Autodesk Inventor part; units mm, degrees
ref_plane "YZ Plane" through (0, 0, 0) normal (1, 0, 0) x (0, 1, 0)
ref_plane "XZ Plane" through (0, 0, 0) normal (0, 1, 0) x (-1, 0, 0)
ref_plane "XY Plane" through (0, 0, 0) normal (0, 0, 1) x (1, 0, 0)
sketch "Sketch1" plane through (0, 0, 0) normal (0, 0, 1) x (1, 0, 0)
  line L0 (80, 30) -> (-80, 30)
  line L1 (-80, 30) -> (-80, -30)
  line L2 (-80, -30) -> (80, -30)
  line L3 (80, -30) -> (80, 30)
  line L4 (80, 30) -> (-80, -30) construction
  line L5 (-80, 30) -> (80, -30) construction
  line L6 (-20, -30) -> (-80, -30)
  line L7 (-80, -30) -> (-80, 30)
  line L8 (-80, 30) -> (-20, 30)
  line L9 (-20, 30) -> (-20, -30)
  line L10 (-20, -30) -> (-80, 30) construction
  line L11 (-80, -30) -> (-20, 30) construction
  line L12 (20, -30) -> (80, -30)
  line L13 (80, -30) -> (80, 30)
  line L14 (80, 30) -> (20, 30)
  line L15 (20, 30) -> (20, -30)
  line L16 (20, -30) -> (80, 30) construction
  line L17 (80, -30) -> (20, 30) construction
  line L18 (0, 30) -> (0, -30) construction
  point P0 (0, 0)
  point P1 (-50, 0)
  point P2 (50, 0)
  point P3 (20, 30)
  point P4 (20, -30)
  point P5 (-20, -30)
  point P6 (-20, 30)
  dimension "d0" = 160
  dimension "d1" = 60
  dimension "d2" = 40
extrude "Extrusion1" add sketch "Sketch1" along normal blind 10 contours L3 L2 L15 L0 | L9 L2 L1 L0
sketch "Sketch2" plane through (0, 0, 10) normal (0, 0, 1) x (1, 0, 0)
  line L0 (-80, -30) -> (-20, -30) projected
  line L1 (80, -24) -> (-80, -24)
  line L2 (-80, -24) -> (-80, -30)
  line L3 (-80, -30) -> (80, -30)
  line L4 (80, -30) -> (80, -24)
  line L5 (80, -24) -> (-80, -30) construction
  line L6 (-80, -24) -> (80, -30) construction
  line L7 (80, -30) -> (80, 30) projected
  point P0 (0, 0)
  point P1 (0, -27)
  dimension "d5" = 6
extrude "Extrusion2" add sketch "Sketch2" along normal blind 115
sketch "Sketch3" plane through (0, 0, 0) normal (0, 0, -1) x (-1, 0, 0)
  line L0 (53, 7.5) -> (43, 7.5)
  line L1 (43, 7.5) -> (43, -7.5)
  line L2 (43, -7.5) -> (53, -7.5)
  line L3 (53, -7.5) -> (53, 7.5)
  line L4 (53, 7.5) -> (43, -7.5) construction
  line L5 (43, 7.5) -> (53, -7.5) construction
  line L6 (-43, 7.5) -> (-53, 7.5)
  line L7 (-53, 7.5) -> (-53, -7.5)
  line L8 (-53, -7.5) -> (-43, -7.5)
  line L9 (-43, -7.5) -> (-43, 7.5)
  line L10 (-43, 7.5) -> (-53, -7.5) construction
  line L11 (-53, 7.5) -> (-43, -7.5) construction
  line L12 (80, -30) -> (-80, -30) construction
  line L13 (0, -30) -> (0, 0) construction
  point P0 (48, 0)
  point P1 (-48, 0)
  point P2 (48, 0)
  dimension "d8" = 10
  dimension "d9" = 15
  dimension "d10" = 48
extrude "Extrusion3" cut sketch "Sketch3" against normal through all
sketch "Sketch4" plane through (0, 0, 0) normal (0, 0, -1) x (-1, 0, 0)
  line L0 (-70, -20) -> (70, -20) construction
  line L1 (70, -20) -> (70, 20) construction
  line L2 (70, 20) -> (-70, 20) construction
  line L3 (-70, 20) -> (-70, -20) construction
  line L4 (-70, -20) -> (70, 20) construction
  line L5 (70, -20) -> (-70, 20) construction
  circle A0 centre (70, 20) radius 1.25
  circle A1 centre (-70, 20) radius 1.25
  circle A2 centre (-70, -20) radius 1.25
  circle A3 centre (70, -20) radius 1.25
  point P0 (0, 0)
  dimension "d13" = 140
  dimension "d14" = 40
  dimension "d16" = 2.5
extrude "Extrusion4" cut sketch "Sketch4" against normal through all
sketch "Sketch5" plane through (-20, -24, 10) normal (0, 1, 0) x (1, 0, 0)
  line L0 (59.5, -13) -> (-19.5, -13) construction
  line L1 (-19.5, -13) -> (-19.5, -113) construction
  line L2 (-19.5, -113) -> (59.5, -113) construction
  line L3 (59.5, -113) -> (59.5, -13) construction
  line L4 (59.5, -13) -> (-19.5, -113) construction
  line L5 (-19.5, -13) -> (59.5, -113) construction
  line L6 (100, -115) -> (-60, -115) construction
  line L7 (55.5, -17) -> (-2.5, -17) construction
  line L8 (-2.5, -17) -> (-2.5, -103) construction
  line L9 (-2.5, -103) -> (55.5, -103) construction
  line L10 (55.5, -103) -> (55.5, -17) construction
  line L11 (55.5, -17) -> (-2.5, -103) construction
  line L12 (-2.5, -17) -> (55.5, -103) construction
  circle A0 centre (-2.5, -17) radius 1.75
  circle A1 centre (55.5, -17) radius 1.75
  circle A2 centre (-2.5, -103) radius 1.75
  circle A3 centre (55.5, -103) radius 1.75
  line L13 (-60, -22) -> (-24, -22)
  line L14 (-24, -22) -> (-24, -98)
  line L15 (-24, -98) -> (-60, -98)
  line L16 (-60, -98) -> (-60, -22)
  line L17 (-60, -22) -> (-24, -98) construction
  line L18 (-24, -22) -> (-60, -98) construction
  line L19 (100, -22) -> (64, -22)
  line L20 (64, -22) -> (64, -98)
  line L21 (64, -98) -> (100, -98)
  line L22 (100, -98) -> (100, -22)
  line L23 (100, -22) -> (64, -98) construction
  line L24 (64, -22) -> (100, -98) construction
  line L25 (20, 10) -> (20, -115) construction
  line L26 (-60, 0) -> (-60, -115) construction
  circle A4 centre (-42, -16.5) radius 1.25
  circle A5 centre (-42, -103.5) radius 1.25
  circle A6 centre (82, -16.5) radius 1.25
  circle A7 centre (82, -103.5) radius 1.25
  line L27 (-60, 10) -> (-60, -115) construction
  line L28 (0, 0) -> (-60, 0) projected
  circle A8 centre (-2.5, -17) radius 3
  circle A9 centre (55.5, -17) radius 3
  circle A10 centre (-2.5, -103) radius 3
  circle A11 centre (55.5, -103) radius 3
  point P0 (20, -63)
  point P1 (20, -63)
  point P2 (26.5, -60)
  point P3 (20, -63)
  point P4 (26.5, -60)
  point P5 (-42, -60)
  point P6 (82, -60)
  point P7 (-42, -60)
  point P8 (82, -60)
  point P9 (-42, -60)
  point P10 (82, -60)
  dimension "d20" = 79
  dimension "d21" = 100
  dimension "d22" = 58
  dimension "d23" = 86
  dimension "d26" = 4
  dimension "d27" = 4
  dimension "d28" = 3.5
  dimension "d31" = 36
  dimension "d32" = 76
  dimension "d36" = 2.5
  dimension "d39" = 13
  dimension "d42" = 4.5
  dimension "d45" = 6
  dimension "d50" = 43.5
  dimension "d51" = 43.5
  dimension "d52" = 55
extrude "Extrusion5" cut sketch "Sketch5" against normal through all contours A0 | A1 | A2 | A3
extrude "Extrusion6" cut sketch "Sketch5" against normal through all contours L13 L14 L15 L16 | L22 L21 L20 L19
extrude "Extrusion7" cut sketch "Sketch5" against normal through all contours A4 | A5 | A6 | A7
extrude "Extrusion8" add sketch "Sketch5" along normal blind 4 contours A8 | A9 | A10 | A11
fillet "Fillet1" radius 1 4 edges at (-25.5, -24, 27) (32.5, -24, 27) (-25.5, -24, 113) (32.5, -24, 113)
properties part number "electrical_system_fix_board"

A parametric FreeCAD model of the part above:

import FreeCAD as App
import Part
import Sketcher

V = App.Vector


def edges_at(feature, points):
    """Names of the edges that pass closest to the given points."""
    edges = feature.Shape.Edges
    near = lambda p: min(range(len(edges)), key=lambda i: edges[i].distToShape(Part.Vertex(*p))[0])
    return sorted({f"Edge{near(p) + 1}" for p in points})


def add_polygon(sketch, points):
    """Adds a closed chain of lines whose ends are joined by coincident constraints."""
    first, n = sketch.GeometryCount, len(points)
    for a, b in zip(points, points[1:] + points[:1]):
        sketch.addGeometry(Part.LineSegment(App.Vector(*a, 0), App.Vector(*b, 0)), False)
    for i in range(n):
        sketch.addConstraint(Sketcher.Constraint("Coincident", first + i, 2, first + (i + 1) % n, 1))

doc = App.newDocument("Part")
body = doc.addObject("PartDesign::Body", "Body")
body.AllowCompound = True

# Sketch on XY plane
sketch1 = body.newObject("Sketcher::SketchObject", "Sketch")
sketch1.AttachmentSupport = (doc.getObject("XY_Plane"), [""])
sketch1.MapMode = "FlatFace"
add_polygon(sketch1, [(80, -30), (80, 30), (20, 30), (20, -30)])  # lines 0-3
add_polygon(sketch1, [(-20, -30), (-20, 30), (-80, 30), (-80, -30)])  # lines 4-7
sketch1.addConstraint(Sketcher.Constraint("Vertical", 0))
sketch1.addConstraint(Sketcher.Constraint("Horizontal", 1))
sketch1.addConstraint(Sketcher.Constraint("Vertical", 2))
sketch1.addConstraint(Sketcher.Constraint("Horizontal", 3))
sketch1.addConstraint(Sketcher.Constraint("Vertical", 4))
sketch1.addConstraint(Sketcher.Constraint("Horizontal", 5))
sketch1.addConstraint(Sketcher.Constraint("Vertical", 6))
sketch1.addConstraint(Sketcher.Constraint("Horizontal", 7))
sketch1.addConstraint(Sketcher.Constraint("Symmetric", 2, 2, 4, 2, -1, 1))
sketch1.addConstraint(Sketcher.Constraint("Symmetric", 0, 2, 6, 2, -1, 1))
sketch1.addConstraint(Sketcher.Constraint("Horizontal", 1, 2, 4, 2))
sketch1.addConstraint(Sketcher.Constraint("Equal", 7, 0))
sketch1.addConstraint(Sketcher.Constraint("DistanceX", 1, 2, 1, 1, 60.0))
sketch1.addConstraint(Sketcher.Constraint("DistanceX", 4, 2, 1, 2, 40.0))
pad1 = body.newObject("PartDesign::Pad", "Pad")
pad1.Profile = sketch1
pad1.Length = 10

# Sketch on XY plane
sketch2 = body.newObject("Sketcher::SketchObject", "Sketch001")
sketch2.AttachmentSupport = (doc.getObject("XY_Plane"), [""])
sketch2.MapMode = "FlatFace"
sketch2.AttachmentOffset = App.Placement(V(0, 0, 10), App.Rotation())
add_polygon(sketch2, [(-80, -24), (-80, -30), (80, -30), (80, -24)])  # lines 0-3
sketch2.addConstraint(Sketcher.Constraint("Vertical", 0))
sketch2.addConstraint(Sketcher.Constraint("Horizontal", 1))
sketch2.addConstraint(Sketcher.Constraint("Vertical", 2))
sketch2.addConstraint(Sketcher.Constraint("Horizontal", 3))
sketch2.addConstraint(Sketcher.Constraint("DistanceY", 0, 2, 0, 1, 6.0))
sketch2.addConstraint(Sketcher.Constraint("DistanceX", 1, 1, 1, 2, 160.0))
sketch2.addConstraint(Sketcher.Constraint("DistanceX", 0, 2, -1, 1, 80.0))
sketch2.addConstraint(Sketcher.Constraint("DistanceY", 0, 2, -1, 1, 30.0))
pad2 = body.newObject("PartDesign::Pad", "Pad001")
pad2.Profile = sketch2
pad2.Length = 115

# Sketch on XY plane
sketch3 = body.newObject("Sketcher::SketchObject", "Sketch002")
sketch3.AttachmentSupport = (doc.getObject("XY_Plane"), [""])
sketch3.MapMode = "FlatFace"
add_polygon(sketch3, [(-53, -8), (-53, 8), (-43, 8), (-43, -8)])  # lines 0-3
add_polygon(sketch3, [(43, -8), (43, 8), (53, 8), (53, -8)])  # lines 4-7
sketch3.addConstraint(Sketcher.Constraint("Vertical", 0))
sketch3.addConstraint(Sketcher.Constraint("Horizontal", 1))
sketch3.addConstraint(Sketcher.Constraint("Vertical", 2))
sketch3.addConstraint(Sketcher.Constraint("Horizontal", 3))
sketch3.addConstraint(Sketcher.Constraint("Vertical", 4))
sketch3.addConstraint(Sketcher.Constraint("Horizontal", 5))
sketch3.addConstraint(Sketcher.Constraint("Vertical", 6))
sketch3.addConstraint(Sketcher.Constraint("Horizontal", 7))
sketch3.addConstraint(Sketcher.Constraint("Symmetric", 2, 2, 4, 2, -1, 1))
sketch3.addConstraint(Sketcher.Constraint("Symmetric", 0, 2, 6, 2, -1, 1))
sketch3.addConstraint(Sketcher.Constraint("Horizontal", 1, 2, 4, 2))
sketch3.addConstraint(Sketcher.Constraint("DistanceX", 1, 1, 1, 2, 10.0))
sketch3.addConstraint(Sketcher.Constraint("DistanceY", 0, 1, 0, 2, 15.0))
sketch3.addConstraint(Sketcher.Constraint("DistanceX", 0, 2, -1, 1, 53.0))
pocket1 = body.newObject("PartDesign::Pocket", "Pocket")
pocket1.Profile = sketch3
pocket1.Type = "ThroughAll"
pocket1.Reversed = True

# Sketch on XY plane
sketch4 = body.newObject("Sketcher::SketchObject", "Sketch003")
sketch4.AttachmentSupport = (doc.getObject("XY_Plane"), [""])
sketch4.MapMode = "FlatFace"
sketch4.addGeometry(Part.Circle(V(-70, 20, 0), V(0, 0, 1), 1.2), False)
sketch4.addGeometry(Part.Circle(V(70, 20, 0), V(0, 0, 1), 1.2), False)
sketch4.addGeometry(Part.Circle(V(70, -20, 0), V(0, 0, 1), 1.2), False)
sketch4.addGeometry(Part.Circle(V(-70, -20, 0), V(0, 0, 1), 1.2), False)
sketch4.addConstraint(Sketcher.Constraint("Equal", 0, 1))
sketch4.addConstraint(Sketcher.Constraint("Equal", 1, 2))
sketch4.addConstraint(Sketcher.Constraint("Equal", 2, 3))
sketch4.addConstraint(Sketcher.Constraint("Symmetric", 0, 3, 2, 3, -1, 1))
sketch4.addConstraint(Sketcher.Constraint("Symmetric", 1, 3, 3, 3, -1, 1))
sketch4.addConstraint(Sketcher.Constraint("Symmetric", 0, 3, 1, 3, -2))
sketch4.addConstraint(Sketcher.Constraint("Diameter", 0, 2.5))
sketch4.addConstraint(Sketcher.Constraint("DistanceX", 0, 3, 1, 3, 140.0))
sketch4.addConstraint(Sketcher.Constraint("DistanceY", 2, 3, 1, 3, 40.0))
pocket2 = body.newObject("PartDesign::Pocket", "Pocket001")
pocket2.Profile = sketch4
pocket2.Type = "ThroughAll"
pocket2.Reversed = True

# Sketch on XZ plane
sketch5 = body.newObject("Sketcher::SketchObject", "Sketch004")
sketch5.AttachmentSupport = (doc.getObject("XZ_Plane"), [""])
sketch5.MapMode = "FlatFace"
sketch5.AttachmentOffset = App.Placement(V(0, 0, 24), App.Rotation())
sketch5.addGeometry(Part.Circle(V(-22.5, 27, 0), V(0, 0, 1), 1.8), False)
sketch5.addGeometry(Part.Circle(V(35.5, 27, 0), V(0, 0, 1), 1.8), False)
sketch5.addGeometry(Part.Circle(V(-22.5, 113, 0), V(0, 0, 1), 1.8), False)
sketch5.addGeometry(Part.Circle(V(35.5, 113, 0), V(0, 0, 1), 1.8), False)
sketch5.addConstraint(Sketcher.Constraint("Equal", 0, 1))
sketch5.addConstraint(Sketcher.Constraint("Equal", 1, 2))
sketch5.addConstraint(Sketcher.Constraint("Equal", 2, 3))
sketch5.addConstraint(Sketcher.Constraint("Horizontal", 0, 3, 1, 3))
sketch5.addConstraint(Sketcher.Constraint("Horizontal", 2, 3, 3, 3))
sketch5.addConstraint(Sketcher.Constraint("Vertical", 0, 3, 2, 3))
sketch5.addConstraint(Sketcher.Constraint("Vertical", 1, 3, 3, 3))
sketch5.addConstraint(Sketcher.Constraint("Diameter", 0, 3.5))
sketch5.addConstraint(Sketcher.Constraint("DistanceX", 0, 3, 1, 3, 58.0))
sketch5.addConstraint(Sketcher.Constraint("DistanceY", 0, 3, 2, 3, 86.0))
sketch5.addConstraint(Sketcher.Constraint("DistanceY", -1, 1, 0, 3, 27.0))
sketch5.addConstraint(Sketcher.Constraint("DistanceX", 0, 3, -1, 1, 22.5))
pocket3 = body.newObject("PartDesign::Pocket", "Pocket002")
pocket3.Profile = sketch5
pocket3.Type = "ThroughAll"
pocket3.Reversed = True

# Sketch on XZ plane
sketch6 = body.newObject("Sketcher::SketchObject", "Sketch005")
sketch6.AttachmentSupport = (doc.getObject("XZ_Plane"), [""])
sketch6.MapMode = "FlatFace"
sketch6.AttachmentOffset = App.Placement(V(0, 0, 24), App.Rotation())
add_polygon(sketch6, [(-44, 32), (-80, 32), (-80, 108), (-44, 108)])  # lines 0-3
add_polygon(sketch6, [(80, 108), (80, 32), (44, 32), (44, 108)])  # lines 4-7
sketch6.addConstraint(Sketcher.Constraint("Horizontal", 0))
sketch6.addConstraint(Sketcher.Constraint("Vertical", 1))
sketch6.addConstraint(Sketcher.Constraint("Horizontal", 2))
sketch6.addConstraint(Sketcher.Constraint("Vertical", 3))
sketch6.addConstraint(Sketcher.Constraint("Vertical", 4))
sketch6.addConstraint(Sketcher.Constraint("Horizontal", 5))
sketch6.addConstraint(Sketcher.Constraint("Vertical", 6))
sketch6.addConstraint(Sketcher.Constraint("Horizontal", 7))
sketch6.addConstraint(Sketcher.Constraint("Symmetric", 0, 2, 4, 2, -2))
sketch6.addConstraint(Sketcher.Constraint("Symmetric", 2, 2, 6, 2, -2))
sketch6.addConstraint(Sketcher.Constraint("DistanceX", 0, 2, 0, 1, 36.0))
sketch6.addConstraint(Sketcher.Constraint("DistanceY", 1, 1, 1, 2, 76.0))
sketch6.addConstraint(Sketcher.Constraint("DistanceX", 0, 2, -1, 1, 80.0))
sketch6.addConstraint(Sketcher.Constraint("DistanceY", -1, 1, 0, 2, 32.0))
pocket4 = body.newObject("PartDesign::Pocket", "Pocket003")
pocket4.Profile = sketch6
pocket4.Type = "ThroughAll"
pocket4.Reversed = True

# Sketch on XZ plane
sketch7 = body.newObject("Sketcher::SketchObject", "Sketch006")
sketch7.AttachmentSupport = (doc.getObject("XZ_Plane"), [""])
sketch7.MapMode = "FlatFace"
sketch7.AttachmentOffset = App.Placement(V(0, 0, 24), App.Rotation())
sketch7.addGeometry(Part.Circle(V(-62, 26.5, 0), V(0, 0, 1), 1.2), False)
sketch7.addGeometry(Part.Circle(V(-62, 113.5, 0), V(0, 0, 1), 1.2), False)
sketch7.addGeometry(Part.Circle(V(62, 26.5, 0), V(0, 0, 1), 1.2), False)
sketch7.addGeometry(Part.Circle(V(62, 113.5, 0), V(0, 0, 1), 1.2), False)
sketch7.addConstraint(Sketcher.Constraint("Equal", 0, 1))
sketch7.addConstraint(Sketcher.Constraint("Equal", 1, 2))
sketch7.addConstraint(Sketcher.Constraint("Equal", 2, 3))
sketch7.addConstraint(Sketcher.Constraint("Symmetric", 0, 3, 2, 3, -2))
sketch7.addConstraint(Sketcher.Constraint("Symmetric", 1, 3, 3, 3, -2))
sketch7.addConstraint(Sketcher.Constraint("Vertical", 0, 3, 1, 3))
sketch7.addConstraint(Sketcher.Constraint("Diameter", 0, 2.5))
sketch7.addConstraint(Sketcher.Constraint("DistanceX", 0, 3, -1, 1, 62.0))
sketch7.addConstraint(Sketcher.Constraint("DistanceY", 0, 3, 1, 3, 87.0))
sketch7.addConstraint(Sketcher.Constraint("DistanceY", -1, 1, 0, 3, 26.5))
pocket5 = body.newObject("PartDesign::Pocket", "Pocket004")
pocket5.Profile = sketch7
pocket5.Type = "ThroughAll"
pocket5.Reversed = True

# Sketch on XZ plane
sketch8 = body.newObject("Sketcher::SketchObject", "Sketch007")
sketch8.AttachmentSupport = (doc.getObject("XZ_Plane"), [""])
sketch8.MapMode = "FlatFace"
sketch8.AttachmentOffset = App.Placement(V(0, 0, 24), App.Rotation())
sketch8.addGeometry(Part.Circle(V(-22.5, 27, 0), V(0, 0, 1), 3), False)
sketch8.addGeometry(Part.Circle(V(-22.5, 27, 0), V(0, 0, 1), 1.8), False)
sketch8.addGeometry(Part.Circle(V(35.5, 27, 0), V(0, 0, 1), 3), False)
sketch8.addGeometry(Part.Circle(V(35.5, 27, 0), V(0, 0, 1), 1.8), False)
sketch8.addGeometry(Part.Circle(V(-22.5, 113, 0), V(0, 0, 1), 3), False)
sketch8.addGeometry(Part.Circle(V(-22.5, 113, 0), V(0, 0, 1), 1.8), False)
sketch8.addGeometry(Part.Circle(V(35.5, 113, 0), V(0, 0, 1), 3), False)
sketch8.addGeometry(Part.Circle(V(35.5, 113, 0), V(0, 0, 1), 1.8), False)
sketch8.addConstraint(Sketcher.Constraint("Coincident", 1, 3, 0, 3))
sketch8.addConstraint(Sketcher.Constraint("Coincident", 3, 3, 2, 3))
sketch8.addConstraint(Sketcher.Constraint("Coincident", 5, 3, 4, 3))
sketch8.addConstraint(Sketcher.Constraint("Coincident", 7, 3, 6, 3))
sketch8.addConstraint(Sketcher.Constraint("Equal", 0, 2))
sketch8.addConstraint(Sketcher.Constraint("Equal", 1, 3))
sketch8.addConstraint(Sketcher.Constraint("Equal", 2, 4))
sketch8.addConstraint(Sketcher.Constraint("Equal", 3, 5))
sketch8.addConstraint(Sketcher.Constraint("Equal", 4, 6))
sketch8.addConstraint(Sketcher.Constraint("Equal", 5, 7))
sketch8.addConstraint(Sketcher.Constraint("Horizontal", 1, 3, 2, 3))
sketch8.addConstraint(Sketcher.Constraint("Horizontal", 5, 3, 6, 3))
sketch8.addConstraint(Sketcher.Constraint("Vertical", 1, 3, 4, 3))
sketch8.addConstraint(Sketcher.Constraint("Vertical", 3, 3, 6, 3))
sketch8.addConstraint(Sketcher.Constraint("Diameter", 0, 6.0))
sketch8.addConstraint(Sketcher.Constraint("Diameter", 1, 3.5))
sketch8.addConstraint(Sketcher.Constraint("DistanceX", 0, 3, 2, 3, 58.0))
sketch8.addConstraint(Sketcher.Constraint("DistanceY", 0, 3, 4, 3, 86.0))
sketch8.addConstraint(Sketcher.Constraint("DistanceY", -1, 1, 0, 3, 27.0))
sketch8.addConstraint(Sketcher.Constraint("DistanceX", 0, 3, -1, 1, 22.5))
pad3 = body.newObject("PartDesign::Pad", "Pad002")
pad3.Profile = sketch8
pad3.Length = 4
pad3.Reversed = True
doc.recompute()

fillet = body.newObject("PartDesign::Fillet", "Fillet")
fillet.Base = (pad3, edges_at(pad3, [
    (-25.5, -24, 27),
    (32.5, -24, 27),
    (-25.5, -24, 113),
    (32.5, -24, 113),
]))
fillet.Radius = 1

doc.recompute()
